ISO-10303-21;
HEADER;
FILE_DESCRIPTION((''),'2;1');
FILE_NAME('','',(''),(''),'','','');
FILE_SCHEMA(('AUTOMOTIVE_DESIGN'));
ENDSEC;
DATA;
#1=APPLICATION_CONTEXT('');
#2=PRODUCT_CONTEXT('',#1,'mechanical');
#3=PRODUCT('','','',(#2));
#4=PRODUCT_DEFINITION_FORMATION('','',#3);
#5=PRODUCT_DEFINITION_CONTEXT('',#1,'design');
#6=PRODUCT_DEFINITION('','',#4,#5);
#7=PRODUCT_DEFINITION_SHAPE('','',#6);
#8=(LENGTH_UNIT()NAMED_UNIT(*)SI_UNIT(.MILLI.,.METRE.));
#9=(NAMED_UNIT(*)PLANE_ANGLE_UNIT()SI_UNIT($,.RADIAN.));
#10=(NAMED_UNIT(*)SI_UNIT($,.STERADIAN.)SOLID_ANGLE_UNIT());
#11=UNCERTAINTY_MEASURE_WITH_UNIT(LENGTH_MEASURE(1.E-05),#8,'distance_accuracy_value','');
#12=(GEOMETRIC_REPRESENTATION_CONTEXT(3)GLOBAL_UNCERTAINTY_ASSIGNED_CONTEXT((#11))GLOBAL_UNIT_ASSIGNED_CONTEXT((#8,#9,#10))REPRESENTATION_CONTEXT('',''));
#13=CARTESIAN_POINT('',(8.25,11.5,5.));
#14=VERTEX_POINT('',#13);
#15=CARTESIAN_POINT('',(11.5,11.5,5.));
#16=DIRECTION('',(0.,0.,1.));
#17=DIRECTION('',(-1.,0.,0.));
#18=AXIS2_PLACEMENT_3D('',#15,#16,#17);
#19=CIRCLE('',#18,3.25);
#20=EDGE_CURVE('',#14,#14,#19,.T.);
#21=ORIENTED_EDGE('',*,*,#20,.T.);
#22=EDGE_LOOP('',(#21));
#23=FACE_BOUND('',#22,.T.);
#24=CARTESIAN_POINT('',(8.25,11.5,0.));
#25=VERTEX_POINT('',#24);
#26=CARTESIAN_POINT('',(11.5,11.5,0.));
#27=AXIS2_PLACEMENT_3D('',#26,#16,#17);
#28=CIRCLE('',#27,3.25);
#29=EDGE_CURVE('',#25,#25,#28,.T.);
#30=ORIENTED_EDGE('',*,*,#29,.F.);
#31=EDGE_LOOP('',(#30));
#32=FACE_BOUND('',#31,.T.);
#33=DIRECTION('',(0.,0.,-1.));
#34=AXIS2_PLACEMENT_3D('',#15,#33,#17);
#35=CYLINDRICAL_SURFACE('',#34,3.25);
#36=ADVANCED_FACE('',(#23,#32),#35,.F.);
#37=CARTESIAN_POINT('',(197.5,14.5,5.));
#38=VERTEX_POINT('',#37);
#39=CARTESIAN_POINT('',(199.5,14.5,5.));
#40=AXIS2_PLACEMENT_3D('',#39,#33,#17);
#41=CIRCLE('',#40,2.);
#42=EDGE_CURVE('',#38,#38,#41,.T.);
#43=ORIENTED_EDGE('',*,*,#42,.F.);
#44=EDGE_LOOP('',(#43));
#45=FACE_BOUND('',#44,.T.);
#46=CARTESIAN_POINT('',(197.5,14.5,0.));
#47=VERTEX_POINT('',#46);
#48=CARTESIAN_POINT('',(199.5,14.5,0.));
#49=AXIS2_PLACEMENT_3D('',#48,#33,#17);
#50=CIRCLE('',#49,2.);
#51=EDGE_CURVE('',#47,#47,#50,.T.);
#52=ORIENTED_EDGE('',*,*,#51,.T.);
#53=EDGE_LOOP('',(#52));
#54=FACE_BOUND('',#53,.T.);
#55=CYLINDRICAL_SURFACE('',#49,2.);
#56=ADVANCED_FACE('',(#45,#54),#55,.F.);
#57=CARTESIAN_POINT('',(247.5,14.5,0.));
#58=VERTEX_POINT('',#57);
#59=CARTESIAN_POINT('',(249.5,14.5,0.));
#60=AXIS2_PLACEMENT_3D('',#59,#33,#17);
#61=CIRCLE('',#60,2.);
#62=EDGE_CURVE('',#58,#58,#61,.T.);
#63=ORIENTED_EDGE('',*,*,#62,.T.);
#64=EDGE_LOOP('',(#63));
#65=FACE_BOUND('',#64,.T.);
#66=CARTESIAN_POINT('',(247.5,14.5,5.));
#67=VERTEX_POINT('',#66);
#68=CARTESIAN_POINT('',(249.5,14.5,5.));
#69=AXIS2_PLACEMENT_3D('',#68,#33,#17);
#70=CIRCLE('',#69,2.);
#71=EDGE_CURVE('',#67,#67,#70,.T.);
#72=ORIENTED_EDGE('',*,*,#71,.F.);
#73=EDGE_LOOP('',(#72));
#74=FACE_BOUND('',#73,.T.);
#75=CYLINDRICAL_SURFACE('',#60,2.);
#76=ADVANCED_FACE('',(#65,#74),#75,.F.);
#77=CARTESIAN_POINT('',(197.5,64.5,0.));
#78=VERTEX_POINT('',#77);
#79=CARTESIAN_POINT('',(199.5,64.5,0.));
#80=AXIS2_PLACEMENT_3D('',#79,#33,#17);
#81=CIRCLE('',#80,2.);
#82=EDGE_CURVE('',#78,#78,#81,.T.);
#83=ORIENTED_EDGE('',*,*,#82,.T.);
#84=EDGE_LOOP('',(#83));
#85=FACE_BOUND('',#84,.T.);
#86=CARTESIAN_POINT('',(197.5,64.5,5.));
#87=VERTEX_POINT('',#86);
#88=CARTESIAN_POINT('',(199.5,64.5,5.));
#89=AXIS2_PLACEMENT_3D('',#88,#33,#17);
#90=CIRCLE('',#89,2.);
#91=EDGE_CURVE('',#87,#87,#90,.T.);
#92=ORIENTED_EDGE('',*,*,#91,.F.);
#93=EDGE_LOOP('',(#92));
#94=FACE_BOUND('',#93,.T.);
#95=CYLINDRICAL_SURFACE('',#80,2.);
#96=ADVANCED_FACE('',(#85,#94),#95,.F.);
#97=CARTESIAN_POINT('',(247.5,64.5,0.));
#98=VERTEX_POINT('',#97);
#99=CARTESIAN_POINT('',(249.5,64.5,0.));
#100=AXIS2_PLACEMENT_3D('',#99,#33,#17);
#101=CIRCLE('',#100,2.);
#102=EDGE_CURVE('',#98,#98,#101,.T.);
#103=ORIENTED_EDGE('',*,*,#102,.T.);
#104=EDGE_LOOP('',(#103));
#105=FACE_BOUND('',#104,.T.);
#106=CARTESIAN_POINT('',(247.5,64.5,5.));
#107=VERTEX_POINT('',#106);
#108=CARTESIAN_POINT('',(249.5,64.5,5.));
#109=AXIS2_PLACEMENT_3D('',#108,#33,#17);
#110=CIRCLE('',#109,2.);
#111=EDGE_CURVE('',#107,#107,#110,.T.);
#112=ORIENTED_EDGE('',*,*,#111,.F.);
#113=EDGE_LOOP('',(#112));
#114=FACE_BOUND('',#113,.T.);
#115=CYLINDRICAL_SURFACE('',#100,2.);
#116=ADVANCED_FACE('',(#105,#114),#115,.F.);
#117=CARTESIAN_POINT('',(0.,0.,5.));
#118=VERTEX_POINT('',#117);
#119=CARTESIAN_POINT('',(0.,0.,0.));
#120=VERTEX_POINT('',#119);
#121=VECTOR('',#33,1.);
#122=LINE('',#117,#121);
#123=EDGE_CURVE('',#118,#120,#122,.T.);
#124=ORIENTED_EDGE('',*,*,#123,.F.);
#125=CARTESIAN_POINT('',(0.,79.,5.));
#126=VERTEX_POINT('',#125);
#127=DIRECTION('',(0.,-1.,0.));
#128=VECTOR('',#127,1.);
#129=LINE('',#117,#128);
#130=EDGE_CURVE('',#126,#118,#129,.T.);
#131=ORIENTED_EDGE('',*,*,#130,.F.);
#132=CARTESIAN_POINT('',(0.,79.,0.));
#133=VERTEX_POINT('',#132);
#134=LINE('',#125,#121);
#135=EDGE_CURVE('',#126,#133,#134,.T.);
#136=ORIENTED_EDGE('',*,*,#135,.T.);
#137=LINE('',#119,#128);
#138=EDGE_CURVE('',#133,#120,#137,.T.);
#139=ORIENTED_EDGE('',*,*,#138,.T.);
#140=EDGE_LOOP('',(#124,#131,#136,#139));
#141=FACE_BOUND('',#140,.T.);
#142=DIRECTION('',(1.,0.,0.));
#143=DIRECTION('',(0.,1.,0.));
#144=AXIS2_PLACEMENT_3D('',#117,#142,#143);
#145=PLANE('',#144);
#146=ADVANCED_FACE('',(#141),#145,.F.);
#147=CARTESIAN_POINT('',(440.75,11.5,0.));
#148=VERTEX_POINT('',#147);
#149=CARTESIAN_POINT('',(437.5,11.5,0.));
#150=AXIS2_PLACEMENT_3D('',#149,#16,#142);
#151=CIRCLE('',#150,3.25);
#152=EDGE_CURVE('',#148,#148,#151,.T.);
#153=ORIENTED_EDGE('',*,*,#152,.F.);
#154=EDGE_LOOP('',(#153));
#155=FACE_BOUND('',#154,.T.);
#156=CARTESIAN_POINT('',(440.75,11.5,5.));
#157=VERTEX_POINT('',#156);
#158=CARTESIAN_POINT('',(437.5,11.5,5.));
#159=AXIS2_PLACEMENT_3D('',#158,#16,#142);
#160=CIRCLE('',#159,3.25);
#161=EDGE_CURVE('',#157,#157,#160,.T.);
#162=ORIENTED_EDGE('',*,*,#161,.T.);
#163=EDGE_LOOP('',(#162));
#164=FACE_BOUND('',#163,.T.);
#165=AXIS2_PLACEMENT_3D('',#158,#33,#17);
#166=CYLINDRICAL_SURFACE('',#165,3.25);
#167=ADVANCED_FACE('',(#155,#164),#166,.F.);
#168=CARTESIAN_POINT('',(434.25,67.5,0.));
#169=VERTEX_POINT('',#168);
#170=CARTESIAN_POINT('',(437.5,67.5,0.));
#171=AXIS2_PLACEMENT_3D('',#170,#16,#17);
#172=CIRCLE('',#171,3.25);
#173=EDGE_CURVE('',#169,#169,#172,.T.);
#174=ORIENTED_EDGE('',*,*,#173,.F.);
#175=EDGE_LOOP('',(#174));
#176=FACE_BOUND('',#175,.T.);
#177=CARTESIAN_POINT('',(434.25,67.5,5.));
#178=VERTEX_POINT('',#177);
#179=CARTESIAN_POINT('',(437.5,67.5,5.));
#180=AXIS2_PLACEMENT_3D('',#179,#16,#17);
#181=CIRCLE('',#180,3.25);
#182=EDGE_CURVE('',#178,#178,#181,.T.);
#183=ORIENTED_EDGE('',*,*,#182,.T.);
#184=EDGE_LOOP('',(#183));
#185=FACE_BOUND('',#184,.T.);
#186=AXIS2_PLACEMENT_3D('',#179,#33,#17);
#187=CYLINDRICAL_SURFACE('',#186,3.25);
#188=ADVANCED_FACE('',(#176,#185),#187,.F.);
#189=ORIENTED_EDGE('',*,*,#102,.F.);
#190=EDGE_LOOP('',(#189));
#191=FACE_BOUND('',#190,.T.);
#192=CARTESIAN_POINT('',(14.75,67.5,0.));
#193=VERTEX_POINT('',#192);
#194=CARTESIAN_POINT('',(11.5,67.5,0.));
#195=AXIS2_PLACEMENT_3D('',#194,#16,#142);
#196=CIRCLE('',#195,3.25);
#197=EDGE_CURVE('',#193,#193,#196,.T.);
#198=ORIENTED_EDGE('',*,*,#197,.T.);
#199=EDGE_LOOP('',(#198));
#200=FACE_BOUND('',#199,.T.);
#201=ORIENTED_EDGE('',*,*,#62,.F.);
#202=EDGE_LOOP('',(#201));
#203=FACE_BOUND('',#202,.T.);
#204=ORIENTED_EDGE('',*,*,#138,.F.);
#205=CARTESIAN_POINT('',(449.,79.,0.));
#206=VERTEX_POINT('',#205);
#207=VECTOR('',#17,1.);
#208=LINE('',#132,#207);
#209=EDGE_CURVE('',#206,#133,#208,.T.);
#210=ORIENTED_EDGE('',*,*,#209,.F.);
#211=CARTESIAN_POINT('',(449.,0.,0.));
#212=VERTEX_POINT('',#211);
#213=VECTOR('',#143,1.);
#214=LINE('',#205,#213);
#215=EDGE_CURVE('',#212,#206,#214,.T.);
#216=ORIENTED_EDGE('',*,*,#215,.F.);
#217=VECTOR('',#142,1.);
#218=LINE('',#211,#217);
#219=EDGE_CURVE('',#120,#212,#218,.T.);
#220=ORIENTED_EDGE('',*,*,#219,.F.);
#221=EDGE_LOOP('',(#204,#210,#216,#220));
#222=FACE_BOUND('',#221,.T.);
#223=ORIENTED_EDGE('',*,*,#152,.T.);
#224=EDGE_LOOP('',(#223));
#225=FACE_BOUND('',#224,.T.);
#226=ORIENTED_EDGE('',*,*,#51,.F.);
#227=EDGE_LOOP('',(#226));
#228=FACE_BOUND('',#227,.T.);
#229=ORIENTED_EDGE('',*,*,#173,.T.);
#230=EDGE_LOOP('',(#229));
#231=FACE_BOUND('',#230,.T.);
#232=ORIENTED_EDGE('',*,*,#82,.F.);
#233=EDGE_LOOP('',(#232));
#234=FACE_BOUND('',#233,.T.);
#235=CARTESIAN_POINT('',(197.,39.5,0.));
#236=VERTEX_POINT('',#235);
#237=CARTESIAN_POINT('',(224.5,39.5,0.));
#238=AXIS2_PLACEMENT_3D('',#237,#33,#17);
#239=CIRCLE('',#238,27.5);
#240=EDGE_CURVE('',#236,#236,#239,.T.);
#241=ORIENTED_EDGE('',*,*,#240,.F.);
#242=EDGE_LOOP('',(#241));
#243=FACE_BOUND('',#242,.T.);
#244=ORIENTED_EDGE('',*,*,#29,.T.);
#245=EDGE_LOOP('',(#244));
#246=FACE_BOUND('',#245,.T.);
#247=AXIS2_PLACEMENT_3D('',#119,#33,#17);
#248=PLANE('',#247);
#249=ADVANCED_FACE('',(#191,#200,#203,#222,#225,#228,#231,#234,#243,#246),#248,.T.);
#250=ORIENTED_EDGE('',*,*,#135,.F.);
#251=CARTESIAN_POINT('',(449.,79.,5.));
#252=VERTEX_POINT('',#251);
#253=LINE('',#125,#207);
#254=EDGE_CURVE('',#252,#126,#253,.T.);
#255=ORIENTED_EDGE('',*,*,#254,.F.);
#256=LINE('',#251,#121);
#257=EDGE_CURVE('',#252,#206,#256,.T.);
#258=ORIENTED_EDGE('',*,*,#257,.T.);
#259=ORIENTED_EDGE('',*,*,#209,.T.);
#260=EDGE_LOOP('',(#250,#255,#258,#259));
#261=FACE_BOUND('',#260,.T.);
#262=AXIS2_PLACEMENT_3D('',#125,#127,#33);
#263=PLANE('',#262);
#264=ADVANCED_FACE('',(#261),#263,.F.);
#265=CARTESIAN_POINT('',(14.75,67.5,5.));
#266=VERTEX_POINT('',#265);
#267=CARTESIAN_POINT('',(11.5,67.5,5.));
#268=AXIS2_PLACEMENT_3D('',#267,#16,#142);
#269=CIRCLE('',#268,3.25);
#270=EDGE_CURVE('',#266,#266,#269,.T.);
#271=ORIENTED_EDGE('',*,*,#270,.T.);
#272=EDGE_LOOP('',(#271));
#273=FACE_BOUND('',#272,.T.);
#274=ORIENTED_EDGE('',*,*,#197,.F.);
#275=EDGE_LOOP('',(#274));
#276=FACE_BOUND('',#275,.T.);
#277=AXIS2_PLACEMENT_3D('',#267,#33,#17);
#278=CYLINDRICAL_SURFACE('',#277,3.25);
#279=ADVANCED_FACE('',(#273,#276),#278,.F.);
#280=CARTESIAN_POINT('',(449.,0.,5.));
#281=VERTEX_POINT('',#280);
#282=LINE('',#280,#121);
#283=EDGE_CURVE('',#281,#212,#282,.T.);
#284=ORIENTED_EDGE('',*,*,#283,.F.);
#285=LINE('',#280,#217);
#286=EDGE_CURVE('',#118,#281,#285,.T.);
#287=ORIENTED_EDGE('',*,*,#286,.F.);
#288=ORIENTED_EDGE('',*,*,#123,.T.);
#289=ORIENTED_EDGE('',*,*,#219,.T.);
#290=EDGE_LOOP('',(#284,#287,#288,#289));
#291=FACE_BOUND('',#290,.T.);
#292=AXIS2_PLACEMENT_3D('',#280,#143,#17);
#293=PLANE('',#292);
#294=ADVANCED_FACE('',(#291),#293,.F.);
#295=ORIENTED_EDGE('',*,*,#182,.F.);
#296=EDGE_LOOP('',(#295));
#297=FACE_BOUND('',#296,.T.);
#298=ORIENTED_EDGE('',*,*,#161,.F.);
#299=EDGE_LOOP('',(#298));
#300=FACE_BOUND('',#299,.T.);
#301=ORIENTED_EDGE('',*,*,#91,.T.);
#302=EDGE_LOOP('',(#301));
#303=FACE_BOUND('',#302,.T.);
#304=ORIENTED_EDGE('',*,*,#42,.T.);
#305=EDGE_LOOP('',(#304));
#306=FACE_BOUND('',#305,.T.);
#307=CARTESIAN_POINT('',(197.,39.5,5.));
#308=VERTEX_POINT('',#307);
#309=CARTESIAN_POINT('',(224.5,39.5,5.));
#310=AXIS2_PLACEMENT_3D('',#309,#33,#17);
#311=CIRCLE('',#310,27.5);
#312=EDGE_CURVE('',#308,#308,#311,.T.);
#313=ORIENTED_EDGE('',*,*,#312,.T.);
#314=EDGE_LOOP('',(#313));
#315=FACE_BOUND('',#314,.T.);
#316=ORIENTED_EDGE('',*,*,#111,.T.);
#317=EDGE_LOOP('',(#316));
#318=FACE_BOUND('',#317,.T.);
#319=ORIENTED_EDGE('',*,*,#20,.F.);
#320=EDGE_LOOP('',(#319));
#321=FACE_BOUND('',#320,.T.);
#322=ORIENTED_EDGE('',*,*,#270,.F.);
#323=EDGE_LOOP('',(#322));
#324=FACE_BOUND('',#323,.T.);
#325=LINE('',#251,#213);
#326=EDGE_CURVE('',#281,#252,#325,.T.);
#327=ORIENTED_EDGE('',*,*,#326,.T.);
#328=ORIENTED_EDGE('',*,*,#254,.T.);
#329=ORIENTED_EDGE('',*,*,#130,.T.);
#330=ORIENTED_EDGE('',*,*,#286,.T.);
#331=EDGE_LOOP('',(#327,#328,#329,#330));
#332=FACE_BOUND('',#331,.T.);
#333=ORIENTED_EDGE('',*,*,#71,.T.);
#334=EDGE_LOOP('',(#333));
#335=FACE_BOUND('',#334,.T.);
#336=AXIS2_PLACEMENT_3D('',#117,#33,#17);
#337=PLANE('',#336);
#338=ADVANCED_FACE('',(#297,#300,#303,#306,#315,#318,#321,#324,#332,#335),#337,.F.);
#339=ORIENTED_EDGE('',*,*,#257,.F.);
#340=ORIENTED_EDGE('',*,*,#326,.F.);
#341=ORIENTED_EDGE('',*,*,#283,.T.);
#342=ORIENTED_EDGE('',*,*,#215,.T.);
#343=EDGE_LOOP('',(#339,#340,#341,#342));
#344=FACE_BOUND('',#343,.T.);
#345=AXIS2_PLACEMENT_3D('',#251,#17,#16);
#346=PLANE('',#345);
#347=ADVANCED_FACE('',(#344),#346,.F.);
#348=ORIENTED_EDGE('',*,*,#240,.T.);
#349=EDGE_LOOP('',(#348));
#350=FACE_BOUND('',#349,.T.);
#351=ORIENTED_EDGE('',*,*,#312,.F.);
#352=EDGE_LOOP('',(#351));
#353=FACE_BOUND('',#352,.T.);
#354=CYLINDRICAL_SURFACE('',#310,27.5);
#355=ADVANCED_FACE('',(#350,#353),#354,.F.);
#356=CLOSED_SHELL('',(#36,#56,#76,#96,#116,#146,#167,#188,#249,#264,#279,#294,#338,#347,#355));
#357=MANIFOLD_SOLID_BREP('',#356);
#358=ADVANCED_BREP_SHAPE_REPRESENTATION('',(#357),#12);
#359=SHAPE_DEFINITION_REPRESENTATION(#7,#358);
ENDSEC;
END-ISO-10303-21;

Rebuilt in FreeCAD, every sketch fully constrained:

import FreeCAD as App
import Part
import Sketcher
Q = App.Units.Quantity

doc = App.newDocument("Part")
body = doc.addObject("PartDesign::Body", "Body")

# Sketch on XY plane
sketch1 = doc.addObject("Sketcher::SketchObject", "Sketch")
body.addObject(sketch1)
sketch1.AttachmentSupport = (doc.XY_Plane, [""])
sketch1.MapMode = "FlatFace"
sketch1.addGeometry([
    Part.LineSegment(App.Vector(0, 79, 0), App.Vector(0, 0, 0)),  # 0
    Part.LineSegment(App.Vector(0, 0, 0), App.Vector(449, 0, 0)),  # 1
    Part.LineSegment(App.Vector(449, 0, 0), App.Vector(449, 79, 0)),  # 2
    Part.LineSegment(App.Vector(449, 79, 0), App.Vector(0, 79, 0)),  # 3
    Part.Circle(App.Vector(11.5, 11.5, 0), App.Vector(0, 0, 1), 3.2),  # 4
    Part.Circle(App.Vector(437.5, 11.5, 0), App.Vector(0, 0, 1), 3.2),  # 5
    Part.Circle(App.Vector(11.5, 67.5, 0), App.Vector(0, 0, 1), 3.2),  # 6
    Part.Circle(App.Vector(437.5, 67.5, 0), App.Vector(0, 0, 1), 3.2),  # 7
], False)
sketch1.addConstraint([
    Sketcher.Constraint("Coincident", 0, 2, 1, 1),
    Sketcher.Constraint("Coincident", 1, 2, 2, 1),
    Sketcher.Constraint("Coincident", 2, 2, 3, 1),
    Sketcher.Constraint("Coincident", 3, 2, 0, 1),
    Sketcher.Constraint("Vertical", 0),
    Sketcher.Constraint("Horizontal", 1),
    Sketcher.Constraint("Vertical", 2),
    Sketcher.Constraint("Horizontal", 3),
    Sketcher.Constraint("Coincident", 0, 2, -1, 1),
    Sketcher.Constraint("Equal", 4, 5),
    Sketcher.Constraint("Equal", 5, 6),
    Sketcher.Constraint("Equal", 6, 7),
    Sketcher.Constraint("Horizontal", 4, 3, 5, 3),
    Sketcher.Constraint("Horizontal", 6, 3, 7, 3),
    Sketcher.Constraint("Vertical", 4, 3, 6, 3),
    Sketcher.Constraint("Vertical", 5, 3, 7, 3),
    Sketcher.Constraint("Diameter", 4, Q("6.5 mm")),
    Sketcher.Constraint("DistanceX", 1, 1, 1, 2, Q("449 mm")),
    Sketcher.Constraint("DistanceY", 0, 2, 0, 1, Q("79 mm")),
    Sketcher.Constraint("DistanceX", 4, 3, 5, 3, Q("426 mm")),
    Sketcher.Constraint("DistanceY", 4, 3, 6, 3, Q("56 mm")),
    Sketcher.Constraint("DistanceX", -1, 1, 4, 3, Q("11.5 mm")),
    Sketcher.Constraint("DistanceY", -1, 1, 4, 3, Q("11.5 mm")),
])
pad1 = doc.addObject("PartDesign::Pad", "Pad")
body.addObject(pad1)
pad1.Profile = sketch1
pad1.Length = 5

# Sketch on XY plane
sketch2 = doc.addObject("Sketcher::SketchObject", "Sketch001")
body.addObject(sketch2)
sketch2.AttachmentSupport = (doc.XY_Plane, [""])
sketch2.MapMode = "FlatFace"
sketch2.addGeometry([
    Part.Circle(App.Vector(249.5, 64.5, 0), App.Vector(0, 0, 1), 2),
    Part.Circle(App.Vector(199.5, 64.5, 0), App.Vector(0, 0, 1), 2),
    Part.Circle(App.Vector(249.5, 14.5, 0), App.Vector(0, 0, 1), 2),
    Part.Circle(App.Vector(199.5, 14.5, 0), App.Vector(0, 0, 1), 2),
], False)
sketch2.addConstraint([
    Sketcher.Constraint("Equal", 0, 1),
    Sketcher.Constraint("Equal", 1, 2),
    Sketcher.Constraint("Equal", 2, 3),
    Sketcher.Constraint("Horizontal", 0, 3, 1, 3),
    Sketcher.Constraint("Horizontal", 2, 3, 3, 3),
    Sketcher.Constraint("Vertical", 0, 3, 2, 3),
    Sketcher.Constraint("Vertical", 1, 3, 3, 3),
    Sketcher.Constraint("Diameter", 0, Q("4 mm")),
    Sketcher.Constraint("DistanceX", 1, 3, 0, 3, Q("50 mm")),
    Sketcher.Constraint("DistanceY", 2, 3, 0, 3, Q("50 mm")),
    Sketcher.Constraint("DistanceX", -1, 1, 0, 3, Q("249.5 mm")),
    Sketcher.Constraint("DistanceY", -1, 1, 0, 3, Q("64.5 mm")),
])
doc.recompute()
hole = doc.addObject("PartDesign::Hole", "Hole")
body.addObject(hole)
hole.Profile = sketch2
hole.ThreadType = "None"
hole.Diameter = 4
hole.DepthType = "ThroughAll"
hole.Reversed = True

# Sketch on XY plane
sketch3 = doc.addObject("Sketcher::SketchObject", "Sketch002")
body.addObject(sketch3)
sketch3.AttachmentSupport = (doc.XY_Plane, [""])
sketch3.MapMode = "FlatFace"
sketch3.addGeometry(Part.Circle(App.Vector(224, 40, 0), App.Vector(0, 0, 1), 28), False)
sketch3.addConstraint([
    Sketcher.Constraint("Diameter", 0, Q("55 mm")),
    Sketcher.Constraint("DistanceX", -1, 1, 0, 3, Q("224.5 mm")),
    Sketcher.Constraint("DistanceY", -1, 1, 0, 3, Q("39.5 mm")),
])
pocket1 = doc.addObject("PartDesign::Pocket", "Pocket")
body.addObject(pocket1)
pocket1.Profile = sketch3
pocket1.Type = "ThroughAll"
pocket1.Reversed = True

doc.recompute()
